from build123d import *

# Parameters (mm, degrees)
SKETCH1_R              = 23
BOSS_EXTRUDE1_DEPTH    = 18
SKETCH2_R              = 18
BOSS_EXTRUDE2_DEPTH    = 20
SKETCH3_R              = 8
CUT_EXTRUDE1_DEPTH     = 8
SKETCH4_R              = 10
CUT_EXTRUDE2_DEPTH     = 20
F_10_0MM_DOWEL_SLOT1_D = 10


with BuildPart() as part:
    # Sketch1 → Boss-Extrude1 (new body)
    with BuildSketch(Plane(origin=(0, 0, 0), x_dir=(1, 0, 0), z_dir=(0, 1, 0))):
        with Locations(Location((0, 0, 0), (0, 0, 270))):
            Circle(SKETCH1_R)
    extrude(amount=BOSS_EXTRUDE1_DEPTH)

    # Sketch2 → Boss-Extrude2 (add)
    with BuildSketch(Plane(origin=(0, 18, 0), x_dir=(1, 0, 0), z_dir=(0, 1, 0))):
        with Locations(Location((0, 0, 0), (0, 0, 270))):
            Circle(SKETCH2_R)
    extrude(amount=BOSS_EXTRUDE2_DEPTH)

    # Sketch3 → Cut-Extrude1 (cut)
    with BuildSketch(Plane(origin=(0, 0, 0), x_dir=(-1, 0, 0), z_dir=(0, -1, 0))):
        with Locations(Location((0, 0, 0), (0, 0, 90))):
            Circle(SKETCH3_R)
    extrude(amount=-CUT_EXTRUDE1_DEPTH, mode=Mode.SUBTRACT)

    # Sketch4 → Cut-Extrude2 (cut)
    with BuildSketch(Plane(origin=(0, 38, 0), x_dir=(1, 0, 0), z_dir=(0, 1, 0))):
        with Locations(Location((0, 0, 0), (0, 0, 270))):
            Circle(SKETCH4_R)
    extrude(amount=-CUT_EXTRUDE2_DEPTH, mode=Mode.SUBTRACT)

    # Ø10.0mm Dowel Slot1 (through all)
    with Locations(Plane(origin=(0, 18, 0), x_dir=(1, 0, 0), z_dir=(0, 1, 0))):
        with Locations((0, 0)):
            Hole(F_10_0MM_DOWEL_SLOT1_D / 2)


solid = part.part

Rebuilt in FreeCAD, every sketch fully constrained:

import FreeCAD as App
import Part
import Sketcher
from FreeCAD import Vector
Q = App.Units.Quantity

doc = App.newDocument("Part")
body = doc.addObject("PartDesign::Body", "Body")

sketch1 = body.newObject("Sketcher::SketchObject", "Sketch")
sketch1.AttachmentSupport = (doc.getObject("XZ_Plane"), [""])
sketch1.MapMode = "FlatFace"
sketch1.addGeometry(Part.Circle(Vector(0, 0, 0), Vector(0, 0, 1), 23), False)
sketch1.addConstraint(Sketcher.Constraint("Coincident", 0, 3, -1, 1))
sketch1.addConstraint(Sketcher.Constraint("Diameter", 0, Q("46 mm")))
pad1 = body.newObject("PartDesign::Pad", "Pad")
pad1.Profile = sketch1
pad1.Length = 18
pad1.Reversed = True

sketch2 = body.newObject("Sketcher::SketchObject", "Sketch001")
sketch2.AttachmentSupport = (doc.getObject("XZ_Plane"), [""])
sketch2.MapMode = "FlatFace"
sketch2.AttachmentOffset = App.Placement(Vector(0, 0, -18), App.Rotation())
sketch2.addGeometry(Part.Circle(Vector(0, 0, 0), Vector(0, 0, 1), 18), False)
sketch2.addConstraint(Sketcher.Constraint("Coincident", 0, 3, -1, 1))
sketch2.addConstraint(Sketcher.Constraint("Diameter", 0, Q("36 mm")))
pad2 = body.newObject("PartDesign::Pad", "Pad001")
pad2.Profile = sketch2
pad2.Length = 20
pad2.Reversed = True

sketch3 = body.newObject("Sketcher::SketchObject", "Sketch002")
sketch3.AttachmentSupport = (doc.getObject("XZ_Plane"), [""])
sketch3.MapMode = "FlatFace"
sketch3.addGeometry(Part.Circle(Vector(0, 0, 0), Vector(0, 0, 1), 8), False)
sketch3.addConstraint(Sketcher.Constraint("Coincident", 0, 3, -1, 1))
sketch3.addConstraint(Sketcher.Constraint("Diameter", 0, Q("16 mm")))
pocket1 = body.newObject("PartDesign::Pocket", "Pocket")
pocket1.Profile = sketch3
pocket1.Length = 8

sketch4 = body.newObject("Sketcher::SketchObject", "Sketch003")
sketch4.AttachmentSupport = (doc.getObject("XZ_Plane"), [""])
sketch4.MapMode = "FlatFace"
sketch4.AttachmentOffset = App.Placement(Vector(0, 0, -38), App.Rotation())
sketch4.addGeometry(Part.Circle(Vector(0, 0, 0), Vector(0, 0, 1), 10), False)
sketch4.addConstraint(Sketcher.Constraint("Coincident", 0, 3, -1, 1))
sketch4.addConstraint(Sketcher.Constraint("Diameter", 0, Q("20 mm")))
pocket2 = body.newObject("PartDesign::Pocket", "Pocket001")
pocket2.Profile = sketch4
pocket2.Length = 20
pocket2.Reversed = True

sketch5 = body.newObject("Sketcher::SketchObject", "Sketch004")
sketch5.AttachmentSupport = (doc.getObject("XZ_Plane"), [""])
sketch5.MapMode = "FlatFace"
sketch5.AttachmentOffset = App.Placement(Vector(0, 0, -18), App.Rotation())
sketch5.addGeometry(Part.Circle(Vector(0, 0, 0), Vector(0, 0, 1), 5), False)
sketch5.addConstraint(Sketcher.Constraint("Coincident", 0, 3, -1, 1))
sketch5.addConstraint(Sketcher.Constraint("Diameter", 0, Q("10 mm")))
doc.recompute()
hole = body.newObject("PartDesign::Hole", "Hole")
hole.Profile = sketch5
hole.ThreadType = "None"
hole.Diameter = 10
hole.DepthType = "ThroughAll"
hole.Reversed = True

doc.recompute()
